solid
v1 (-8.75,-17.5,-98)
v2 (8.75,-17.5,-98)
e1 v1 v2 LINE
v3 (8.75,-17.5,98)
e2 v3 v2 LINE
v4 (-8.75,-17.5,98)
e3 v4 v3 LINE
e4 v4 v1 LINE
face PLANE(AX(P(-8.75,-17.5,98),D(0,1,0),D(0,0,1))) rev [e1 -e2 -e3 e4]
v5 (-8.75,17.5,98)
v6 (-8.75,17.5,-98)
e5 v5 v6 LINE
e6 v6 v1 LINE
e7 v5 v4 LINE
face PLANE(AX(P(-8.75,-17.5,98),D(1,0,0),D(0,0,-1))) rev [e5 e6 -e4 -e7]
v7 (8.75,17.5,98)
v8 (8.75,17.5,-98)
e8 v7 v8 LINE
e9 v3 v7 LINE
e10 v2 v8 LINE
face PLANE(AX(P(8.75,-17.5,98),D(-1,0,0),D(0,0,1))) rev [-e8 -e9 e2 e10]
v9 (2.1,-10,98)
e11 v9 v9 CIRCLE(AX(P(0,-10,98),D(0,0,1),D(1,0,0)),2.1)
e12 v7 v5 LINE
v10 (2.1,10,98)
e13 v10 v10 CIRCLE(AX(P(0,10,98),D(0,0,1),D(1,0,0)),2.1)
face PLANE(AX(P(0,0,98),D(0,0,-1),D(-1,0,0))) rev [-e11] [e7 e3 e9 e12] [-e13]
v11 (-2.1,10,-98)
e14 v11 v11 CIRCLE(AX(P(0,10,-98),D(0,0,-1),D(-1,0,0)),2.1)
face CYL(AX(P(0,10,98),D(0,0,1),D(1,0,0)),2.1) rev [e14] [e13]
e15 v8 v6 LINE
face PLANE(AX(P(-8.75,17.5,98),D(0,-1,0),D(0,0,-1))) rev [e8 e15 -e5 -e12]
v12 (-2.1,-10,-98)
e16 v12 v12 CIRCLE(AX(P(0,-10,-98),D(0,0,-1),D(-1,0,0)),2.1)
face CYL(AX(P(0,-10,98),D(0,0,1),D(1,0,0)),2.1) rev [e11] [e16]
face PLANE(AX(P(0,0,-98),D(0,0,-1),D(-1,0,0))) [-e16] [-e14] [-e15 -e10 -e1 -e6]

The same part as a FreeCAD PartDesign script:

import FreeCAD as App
import Part
import Sketcher

V = App.Vector
Q = App.Units.Quantity

doc = App.newDocument("Part")
body = doc.addObject("PartDesign::Body", "Body")

# Sketch on XY plane
sketch1 = doc.addObject("Sketcher::SketchObject", "Sketch")
body.addObject(sketch1)
sketch1.AttachmentSupport = (doc.XY_Plane, [""])
sketch1.MapMode = "FlatFace"
sketch1.addGeometry([
    Part.LineSegment(V(-9, 18, 0), V(-9, -18, 0)),
    Part.LineSegment(V(-9, -18, 0), V(9, -18, 0)),
    Part.LineSegment(V(9, -18, 0), V(9, 18, 0)),
    Part.LineSegment(V(9, 18, 0), V(-9, 18, 0)),
], False)
sketch1.addConstraint([
    Sketcher.Constraint("Coincident", 0, 2, 1, 1),
    Sketcher.Constraint("Coincident", 1, 2, 2, 1),
    Sketcher.Constraint("Coincident", 2, 2, 3, 1),
    Sketcher.Constraint("Coincident", 3, 2, 0, 1),
    Sketcher.Constraint("Vertical", 0),
    Sketcher.Constraint("Horizontal", 1),
    Sketcher.Constraint("Vertical", 2),
    Sketcher.Constraint("Horizontal", 3),
    Sketcher.Constraint("Symmetric", 0, 2, 2, 2, -1, 1),
    Sketcher.Constraint("DistanceY", 0, 2, 0, 1, Q("35 mm")),
    Sketcher.Constraint("DistanceX", 1, 1, 1, 2, Q("17.5 mm")),
])
pad1 = doc.addObject("PartDesign::Pad", "Pad")
body.addObject(pad1)
pad1.Profile = sketch1
pad1.Length = 196
pad1.Midplane = True

# Sketch on YZ plane
sketch2 = doc.addObject("Sketcher::SketchObject", "Sketch001")
body.addObject(sketch2)
sketch2.AttachmentSupport = (doc.YZ_Plane, [""])
sketch2.MapMode = "FlatFace"
sketch2.addGeometry([
    Part.LineSegment(V(10, -103.3, 0), V(10, 98, 0)),
    Part.LineSegment(V(10, 98, 0), V(7.9, 98, 0)),
    Part.LineSegment(V(7.9, 98, 0), V(7.9, -102, 0)),
    Part.LineSegment(V(7.9, -102, 0), V(10, -103.3, 0)),
], False)
sketch2.addGeometry(Part.LineSegment(V(10, 98, 0), V(10, -103.3, 0)), True)  # axis
sketch2.addConstraint([
    Sketcher.Constraint("Coincident", 0, 2, 1, 1),
    Sketcher.Constraint("Coincident", 1, 2, 2, 1),
    Sketcher.Constraint("Coincident", 2, 2, 3, 1),
    Sketcher.Constraint("Coincident", 3, 2, 0, 1),
    Sketcher.Constraint("Vertical", 0),
    Sketcher.Constraint("Horizontal", 1),
    Sketcher.Constraint("Vertical", 2),
    Sketcher.Constraint("Vertical", 4),
    Sketcher.Constraint("Coincident", 4, 1, 0, 2),
    Sketcher.Constraint("Equal", 0, 4),
    Sketcher.Constraint("DistanceY", 2, 2, 2, 1, Q("200 mm")),
    Sketcher.Constraint("Angle", 3, Q("-31 deg")),
    Sketcher.Constraint("DistanceX", 1, 2, 1, 1, Q("2.1 mm")),
    Sketcher.Constraint("DistanceX", -1, 1, 0, 2, Q("10 mm")),
    Sketcher.Constraint("DistanceY", -1, 1, 0, 2, Q("98 mm")),
])
groove = doc.addObject("PartDesign::Groove", "Groove")
body.addObject(groove)
groove.Profile = sketch2
groove.ReferenceAxis = (sketch2, ["Axis0"])
groove.Angle = 360
doc.recompute()

linearpattern = doc.addObject("PartDesign::LinearPattern", "LinearPattern")
body.addObject(linearpattern)
linearpattern.Originals = [groove]
linearpattern.Direction = (doc.Y_Axis, [""])
linearpattern.Mode = "offset"
linearpattern.Offset = 20
linearpattern.Occurrences = 2
linearpattern.Reversed = True
body.Tip = linearpattern
doc.recompute()

mirrored = doc.addObject("PartDesign::Mirrored", "Mirrored")
body.addObject(mirrored)
mirrored.Originals = [groove]
mirrored.MirrorPlane = (doc.XY_Plane, [""])
body.Tip = mirrored

# Sketch on YZ plane
sketch3 = doc.addObject("Sketcher::SketchObject", "Sketch002")
body.addObject(sketch3)
sketch3.AttachmentSupport = (doc.YZ_Plane, [""])
sketch3.MapMode = "FlatFace"
sketch3.addGeometry([
    Part.LineSegment(V(-10, -98, 0), V(-10, 103.3, 0)),
    Part.LineSegment(V(-10, 103.3, 0), V(-12.1, 102, 0)),
    Part.LineSegment(V(-12.1, 102, 0), V(-12.1, -98, 0)),
    Part.LineSegment(V(-12.1, -98, 0), V(-10, -98, 0)),
], False)
sketch3.addGeometry(Part.LineSegment(V(-10, 103.3, 0), V(-10, -98, 0)), True)  # axis
sketch3.addConstraint([
    Sketcher.Constraint("Coincident", 0, 2, 1, 1),
    Sketcher.Constraint("Coincident", 1, 2, 2, 1),
    Sketcher.Constraint("Coincident", 2, 2, 3, 1),
    Sketcher.Constraint("Coincident", 3, 2, 0, 1),
    Sketcher.Constraint("Vertical", 0),
    Sketcher.Constraint("Vertical", 2),
    Sketcher.Constraint("Horizontal", 3),
    Sketcher.Constraint("Vertical", 4),
    Sketcher.Constraint("Coincident", 4, 1, 0, 2),
    Sketcher.Constraint("Horizontal", 2, 2, 4, 2),
    Sketcher.Constraint("DistanceY", 2, 2, 2, 1, Q("200 mm")),
    Sketcher.Constraint("Angle", 1, Q("-149 deg")),
    Sketcher.Constraint("DistanceX", 3, 1, 3, 2, Q("2.1 mm")),
    Sketcher.Constraint("DistanceX", 0, 2, -1, 1, Q("10 mm")),
    Sketcher.Constraint("DistanceY", -1, 1, 1, 2, Q("102 mm")),
])
groove2 = doc.addObject("PartDesign::Groove", "Groove001")
body.addObject(groove2)
groove2.Profile = sketch3
groove2.ReferenceAxis = (sketch3, ["Axis0"])
groove2.Angle = 360

doc.recompute()
